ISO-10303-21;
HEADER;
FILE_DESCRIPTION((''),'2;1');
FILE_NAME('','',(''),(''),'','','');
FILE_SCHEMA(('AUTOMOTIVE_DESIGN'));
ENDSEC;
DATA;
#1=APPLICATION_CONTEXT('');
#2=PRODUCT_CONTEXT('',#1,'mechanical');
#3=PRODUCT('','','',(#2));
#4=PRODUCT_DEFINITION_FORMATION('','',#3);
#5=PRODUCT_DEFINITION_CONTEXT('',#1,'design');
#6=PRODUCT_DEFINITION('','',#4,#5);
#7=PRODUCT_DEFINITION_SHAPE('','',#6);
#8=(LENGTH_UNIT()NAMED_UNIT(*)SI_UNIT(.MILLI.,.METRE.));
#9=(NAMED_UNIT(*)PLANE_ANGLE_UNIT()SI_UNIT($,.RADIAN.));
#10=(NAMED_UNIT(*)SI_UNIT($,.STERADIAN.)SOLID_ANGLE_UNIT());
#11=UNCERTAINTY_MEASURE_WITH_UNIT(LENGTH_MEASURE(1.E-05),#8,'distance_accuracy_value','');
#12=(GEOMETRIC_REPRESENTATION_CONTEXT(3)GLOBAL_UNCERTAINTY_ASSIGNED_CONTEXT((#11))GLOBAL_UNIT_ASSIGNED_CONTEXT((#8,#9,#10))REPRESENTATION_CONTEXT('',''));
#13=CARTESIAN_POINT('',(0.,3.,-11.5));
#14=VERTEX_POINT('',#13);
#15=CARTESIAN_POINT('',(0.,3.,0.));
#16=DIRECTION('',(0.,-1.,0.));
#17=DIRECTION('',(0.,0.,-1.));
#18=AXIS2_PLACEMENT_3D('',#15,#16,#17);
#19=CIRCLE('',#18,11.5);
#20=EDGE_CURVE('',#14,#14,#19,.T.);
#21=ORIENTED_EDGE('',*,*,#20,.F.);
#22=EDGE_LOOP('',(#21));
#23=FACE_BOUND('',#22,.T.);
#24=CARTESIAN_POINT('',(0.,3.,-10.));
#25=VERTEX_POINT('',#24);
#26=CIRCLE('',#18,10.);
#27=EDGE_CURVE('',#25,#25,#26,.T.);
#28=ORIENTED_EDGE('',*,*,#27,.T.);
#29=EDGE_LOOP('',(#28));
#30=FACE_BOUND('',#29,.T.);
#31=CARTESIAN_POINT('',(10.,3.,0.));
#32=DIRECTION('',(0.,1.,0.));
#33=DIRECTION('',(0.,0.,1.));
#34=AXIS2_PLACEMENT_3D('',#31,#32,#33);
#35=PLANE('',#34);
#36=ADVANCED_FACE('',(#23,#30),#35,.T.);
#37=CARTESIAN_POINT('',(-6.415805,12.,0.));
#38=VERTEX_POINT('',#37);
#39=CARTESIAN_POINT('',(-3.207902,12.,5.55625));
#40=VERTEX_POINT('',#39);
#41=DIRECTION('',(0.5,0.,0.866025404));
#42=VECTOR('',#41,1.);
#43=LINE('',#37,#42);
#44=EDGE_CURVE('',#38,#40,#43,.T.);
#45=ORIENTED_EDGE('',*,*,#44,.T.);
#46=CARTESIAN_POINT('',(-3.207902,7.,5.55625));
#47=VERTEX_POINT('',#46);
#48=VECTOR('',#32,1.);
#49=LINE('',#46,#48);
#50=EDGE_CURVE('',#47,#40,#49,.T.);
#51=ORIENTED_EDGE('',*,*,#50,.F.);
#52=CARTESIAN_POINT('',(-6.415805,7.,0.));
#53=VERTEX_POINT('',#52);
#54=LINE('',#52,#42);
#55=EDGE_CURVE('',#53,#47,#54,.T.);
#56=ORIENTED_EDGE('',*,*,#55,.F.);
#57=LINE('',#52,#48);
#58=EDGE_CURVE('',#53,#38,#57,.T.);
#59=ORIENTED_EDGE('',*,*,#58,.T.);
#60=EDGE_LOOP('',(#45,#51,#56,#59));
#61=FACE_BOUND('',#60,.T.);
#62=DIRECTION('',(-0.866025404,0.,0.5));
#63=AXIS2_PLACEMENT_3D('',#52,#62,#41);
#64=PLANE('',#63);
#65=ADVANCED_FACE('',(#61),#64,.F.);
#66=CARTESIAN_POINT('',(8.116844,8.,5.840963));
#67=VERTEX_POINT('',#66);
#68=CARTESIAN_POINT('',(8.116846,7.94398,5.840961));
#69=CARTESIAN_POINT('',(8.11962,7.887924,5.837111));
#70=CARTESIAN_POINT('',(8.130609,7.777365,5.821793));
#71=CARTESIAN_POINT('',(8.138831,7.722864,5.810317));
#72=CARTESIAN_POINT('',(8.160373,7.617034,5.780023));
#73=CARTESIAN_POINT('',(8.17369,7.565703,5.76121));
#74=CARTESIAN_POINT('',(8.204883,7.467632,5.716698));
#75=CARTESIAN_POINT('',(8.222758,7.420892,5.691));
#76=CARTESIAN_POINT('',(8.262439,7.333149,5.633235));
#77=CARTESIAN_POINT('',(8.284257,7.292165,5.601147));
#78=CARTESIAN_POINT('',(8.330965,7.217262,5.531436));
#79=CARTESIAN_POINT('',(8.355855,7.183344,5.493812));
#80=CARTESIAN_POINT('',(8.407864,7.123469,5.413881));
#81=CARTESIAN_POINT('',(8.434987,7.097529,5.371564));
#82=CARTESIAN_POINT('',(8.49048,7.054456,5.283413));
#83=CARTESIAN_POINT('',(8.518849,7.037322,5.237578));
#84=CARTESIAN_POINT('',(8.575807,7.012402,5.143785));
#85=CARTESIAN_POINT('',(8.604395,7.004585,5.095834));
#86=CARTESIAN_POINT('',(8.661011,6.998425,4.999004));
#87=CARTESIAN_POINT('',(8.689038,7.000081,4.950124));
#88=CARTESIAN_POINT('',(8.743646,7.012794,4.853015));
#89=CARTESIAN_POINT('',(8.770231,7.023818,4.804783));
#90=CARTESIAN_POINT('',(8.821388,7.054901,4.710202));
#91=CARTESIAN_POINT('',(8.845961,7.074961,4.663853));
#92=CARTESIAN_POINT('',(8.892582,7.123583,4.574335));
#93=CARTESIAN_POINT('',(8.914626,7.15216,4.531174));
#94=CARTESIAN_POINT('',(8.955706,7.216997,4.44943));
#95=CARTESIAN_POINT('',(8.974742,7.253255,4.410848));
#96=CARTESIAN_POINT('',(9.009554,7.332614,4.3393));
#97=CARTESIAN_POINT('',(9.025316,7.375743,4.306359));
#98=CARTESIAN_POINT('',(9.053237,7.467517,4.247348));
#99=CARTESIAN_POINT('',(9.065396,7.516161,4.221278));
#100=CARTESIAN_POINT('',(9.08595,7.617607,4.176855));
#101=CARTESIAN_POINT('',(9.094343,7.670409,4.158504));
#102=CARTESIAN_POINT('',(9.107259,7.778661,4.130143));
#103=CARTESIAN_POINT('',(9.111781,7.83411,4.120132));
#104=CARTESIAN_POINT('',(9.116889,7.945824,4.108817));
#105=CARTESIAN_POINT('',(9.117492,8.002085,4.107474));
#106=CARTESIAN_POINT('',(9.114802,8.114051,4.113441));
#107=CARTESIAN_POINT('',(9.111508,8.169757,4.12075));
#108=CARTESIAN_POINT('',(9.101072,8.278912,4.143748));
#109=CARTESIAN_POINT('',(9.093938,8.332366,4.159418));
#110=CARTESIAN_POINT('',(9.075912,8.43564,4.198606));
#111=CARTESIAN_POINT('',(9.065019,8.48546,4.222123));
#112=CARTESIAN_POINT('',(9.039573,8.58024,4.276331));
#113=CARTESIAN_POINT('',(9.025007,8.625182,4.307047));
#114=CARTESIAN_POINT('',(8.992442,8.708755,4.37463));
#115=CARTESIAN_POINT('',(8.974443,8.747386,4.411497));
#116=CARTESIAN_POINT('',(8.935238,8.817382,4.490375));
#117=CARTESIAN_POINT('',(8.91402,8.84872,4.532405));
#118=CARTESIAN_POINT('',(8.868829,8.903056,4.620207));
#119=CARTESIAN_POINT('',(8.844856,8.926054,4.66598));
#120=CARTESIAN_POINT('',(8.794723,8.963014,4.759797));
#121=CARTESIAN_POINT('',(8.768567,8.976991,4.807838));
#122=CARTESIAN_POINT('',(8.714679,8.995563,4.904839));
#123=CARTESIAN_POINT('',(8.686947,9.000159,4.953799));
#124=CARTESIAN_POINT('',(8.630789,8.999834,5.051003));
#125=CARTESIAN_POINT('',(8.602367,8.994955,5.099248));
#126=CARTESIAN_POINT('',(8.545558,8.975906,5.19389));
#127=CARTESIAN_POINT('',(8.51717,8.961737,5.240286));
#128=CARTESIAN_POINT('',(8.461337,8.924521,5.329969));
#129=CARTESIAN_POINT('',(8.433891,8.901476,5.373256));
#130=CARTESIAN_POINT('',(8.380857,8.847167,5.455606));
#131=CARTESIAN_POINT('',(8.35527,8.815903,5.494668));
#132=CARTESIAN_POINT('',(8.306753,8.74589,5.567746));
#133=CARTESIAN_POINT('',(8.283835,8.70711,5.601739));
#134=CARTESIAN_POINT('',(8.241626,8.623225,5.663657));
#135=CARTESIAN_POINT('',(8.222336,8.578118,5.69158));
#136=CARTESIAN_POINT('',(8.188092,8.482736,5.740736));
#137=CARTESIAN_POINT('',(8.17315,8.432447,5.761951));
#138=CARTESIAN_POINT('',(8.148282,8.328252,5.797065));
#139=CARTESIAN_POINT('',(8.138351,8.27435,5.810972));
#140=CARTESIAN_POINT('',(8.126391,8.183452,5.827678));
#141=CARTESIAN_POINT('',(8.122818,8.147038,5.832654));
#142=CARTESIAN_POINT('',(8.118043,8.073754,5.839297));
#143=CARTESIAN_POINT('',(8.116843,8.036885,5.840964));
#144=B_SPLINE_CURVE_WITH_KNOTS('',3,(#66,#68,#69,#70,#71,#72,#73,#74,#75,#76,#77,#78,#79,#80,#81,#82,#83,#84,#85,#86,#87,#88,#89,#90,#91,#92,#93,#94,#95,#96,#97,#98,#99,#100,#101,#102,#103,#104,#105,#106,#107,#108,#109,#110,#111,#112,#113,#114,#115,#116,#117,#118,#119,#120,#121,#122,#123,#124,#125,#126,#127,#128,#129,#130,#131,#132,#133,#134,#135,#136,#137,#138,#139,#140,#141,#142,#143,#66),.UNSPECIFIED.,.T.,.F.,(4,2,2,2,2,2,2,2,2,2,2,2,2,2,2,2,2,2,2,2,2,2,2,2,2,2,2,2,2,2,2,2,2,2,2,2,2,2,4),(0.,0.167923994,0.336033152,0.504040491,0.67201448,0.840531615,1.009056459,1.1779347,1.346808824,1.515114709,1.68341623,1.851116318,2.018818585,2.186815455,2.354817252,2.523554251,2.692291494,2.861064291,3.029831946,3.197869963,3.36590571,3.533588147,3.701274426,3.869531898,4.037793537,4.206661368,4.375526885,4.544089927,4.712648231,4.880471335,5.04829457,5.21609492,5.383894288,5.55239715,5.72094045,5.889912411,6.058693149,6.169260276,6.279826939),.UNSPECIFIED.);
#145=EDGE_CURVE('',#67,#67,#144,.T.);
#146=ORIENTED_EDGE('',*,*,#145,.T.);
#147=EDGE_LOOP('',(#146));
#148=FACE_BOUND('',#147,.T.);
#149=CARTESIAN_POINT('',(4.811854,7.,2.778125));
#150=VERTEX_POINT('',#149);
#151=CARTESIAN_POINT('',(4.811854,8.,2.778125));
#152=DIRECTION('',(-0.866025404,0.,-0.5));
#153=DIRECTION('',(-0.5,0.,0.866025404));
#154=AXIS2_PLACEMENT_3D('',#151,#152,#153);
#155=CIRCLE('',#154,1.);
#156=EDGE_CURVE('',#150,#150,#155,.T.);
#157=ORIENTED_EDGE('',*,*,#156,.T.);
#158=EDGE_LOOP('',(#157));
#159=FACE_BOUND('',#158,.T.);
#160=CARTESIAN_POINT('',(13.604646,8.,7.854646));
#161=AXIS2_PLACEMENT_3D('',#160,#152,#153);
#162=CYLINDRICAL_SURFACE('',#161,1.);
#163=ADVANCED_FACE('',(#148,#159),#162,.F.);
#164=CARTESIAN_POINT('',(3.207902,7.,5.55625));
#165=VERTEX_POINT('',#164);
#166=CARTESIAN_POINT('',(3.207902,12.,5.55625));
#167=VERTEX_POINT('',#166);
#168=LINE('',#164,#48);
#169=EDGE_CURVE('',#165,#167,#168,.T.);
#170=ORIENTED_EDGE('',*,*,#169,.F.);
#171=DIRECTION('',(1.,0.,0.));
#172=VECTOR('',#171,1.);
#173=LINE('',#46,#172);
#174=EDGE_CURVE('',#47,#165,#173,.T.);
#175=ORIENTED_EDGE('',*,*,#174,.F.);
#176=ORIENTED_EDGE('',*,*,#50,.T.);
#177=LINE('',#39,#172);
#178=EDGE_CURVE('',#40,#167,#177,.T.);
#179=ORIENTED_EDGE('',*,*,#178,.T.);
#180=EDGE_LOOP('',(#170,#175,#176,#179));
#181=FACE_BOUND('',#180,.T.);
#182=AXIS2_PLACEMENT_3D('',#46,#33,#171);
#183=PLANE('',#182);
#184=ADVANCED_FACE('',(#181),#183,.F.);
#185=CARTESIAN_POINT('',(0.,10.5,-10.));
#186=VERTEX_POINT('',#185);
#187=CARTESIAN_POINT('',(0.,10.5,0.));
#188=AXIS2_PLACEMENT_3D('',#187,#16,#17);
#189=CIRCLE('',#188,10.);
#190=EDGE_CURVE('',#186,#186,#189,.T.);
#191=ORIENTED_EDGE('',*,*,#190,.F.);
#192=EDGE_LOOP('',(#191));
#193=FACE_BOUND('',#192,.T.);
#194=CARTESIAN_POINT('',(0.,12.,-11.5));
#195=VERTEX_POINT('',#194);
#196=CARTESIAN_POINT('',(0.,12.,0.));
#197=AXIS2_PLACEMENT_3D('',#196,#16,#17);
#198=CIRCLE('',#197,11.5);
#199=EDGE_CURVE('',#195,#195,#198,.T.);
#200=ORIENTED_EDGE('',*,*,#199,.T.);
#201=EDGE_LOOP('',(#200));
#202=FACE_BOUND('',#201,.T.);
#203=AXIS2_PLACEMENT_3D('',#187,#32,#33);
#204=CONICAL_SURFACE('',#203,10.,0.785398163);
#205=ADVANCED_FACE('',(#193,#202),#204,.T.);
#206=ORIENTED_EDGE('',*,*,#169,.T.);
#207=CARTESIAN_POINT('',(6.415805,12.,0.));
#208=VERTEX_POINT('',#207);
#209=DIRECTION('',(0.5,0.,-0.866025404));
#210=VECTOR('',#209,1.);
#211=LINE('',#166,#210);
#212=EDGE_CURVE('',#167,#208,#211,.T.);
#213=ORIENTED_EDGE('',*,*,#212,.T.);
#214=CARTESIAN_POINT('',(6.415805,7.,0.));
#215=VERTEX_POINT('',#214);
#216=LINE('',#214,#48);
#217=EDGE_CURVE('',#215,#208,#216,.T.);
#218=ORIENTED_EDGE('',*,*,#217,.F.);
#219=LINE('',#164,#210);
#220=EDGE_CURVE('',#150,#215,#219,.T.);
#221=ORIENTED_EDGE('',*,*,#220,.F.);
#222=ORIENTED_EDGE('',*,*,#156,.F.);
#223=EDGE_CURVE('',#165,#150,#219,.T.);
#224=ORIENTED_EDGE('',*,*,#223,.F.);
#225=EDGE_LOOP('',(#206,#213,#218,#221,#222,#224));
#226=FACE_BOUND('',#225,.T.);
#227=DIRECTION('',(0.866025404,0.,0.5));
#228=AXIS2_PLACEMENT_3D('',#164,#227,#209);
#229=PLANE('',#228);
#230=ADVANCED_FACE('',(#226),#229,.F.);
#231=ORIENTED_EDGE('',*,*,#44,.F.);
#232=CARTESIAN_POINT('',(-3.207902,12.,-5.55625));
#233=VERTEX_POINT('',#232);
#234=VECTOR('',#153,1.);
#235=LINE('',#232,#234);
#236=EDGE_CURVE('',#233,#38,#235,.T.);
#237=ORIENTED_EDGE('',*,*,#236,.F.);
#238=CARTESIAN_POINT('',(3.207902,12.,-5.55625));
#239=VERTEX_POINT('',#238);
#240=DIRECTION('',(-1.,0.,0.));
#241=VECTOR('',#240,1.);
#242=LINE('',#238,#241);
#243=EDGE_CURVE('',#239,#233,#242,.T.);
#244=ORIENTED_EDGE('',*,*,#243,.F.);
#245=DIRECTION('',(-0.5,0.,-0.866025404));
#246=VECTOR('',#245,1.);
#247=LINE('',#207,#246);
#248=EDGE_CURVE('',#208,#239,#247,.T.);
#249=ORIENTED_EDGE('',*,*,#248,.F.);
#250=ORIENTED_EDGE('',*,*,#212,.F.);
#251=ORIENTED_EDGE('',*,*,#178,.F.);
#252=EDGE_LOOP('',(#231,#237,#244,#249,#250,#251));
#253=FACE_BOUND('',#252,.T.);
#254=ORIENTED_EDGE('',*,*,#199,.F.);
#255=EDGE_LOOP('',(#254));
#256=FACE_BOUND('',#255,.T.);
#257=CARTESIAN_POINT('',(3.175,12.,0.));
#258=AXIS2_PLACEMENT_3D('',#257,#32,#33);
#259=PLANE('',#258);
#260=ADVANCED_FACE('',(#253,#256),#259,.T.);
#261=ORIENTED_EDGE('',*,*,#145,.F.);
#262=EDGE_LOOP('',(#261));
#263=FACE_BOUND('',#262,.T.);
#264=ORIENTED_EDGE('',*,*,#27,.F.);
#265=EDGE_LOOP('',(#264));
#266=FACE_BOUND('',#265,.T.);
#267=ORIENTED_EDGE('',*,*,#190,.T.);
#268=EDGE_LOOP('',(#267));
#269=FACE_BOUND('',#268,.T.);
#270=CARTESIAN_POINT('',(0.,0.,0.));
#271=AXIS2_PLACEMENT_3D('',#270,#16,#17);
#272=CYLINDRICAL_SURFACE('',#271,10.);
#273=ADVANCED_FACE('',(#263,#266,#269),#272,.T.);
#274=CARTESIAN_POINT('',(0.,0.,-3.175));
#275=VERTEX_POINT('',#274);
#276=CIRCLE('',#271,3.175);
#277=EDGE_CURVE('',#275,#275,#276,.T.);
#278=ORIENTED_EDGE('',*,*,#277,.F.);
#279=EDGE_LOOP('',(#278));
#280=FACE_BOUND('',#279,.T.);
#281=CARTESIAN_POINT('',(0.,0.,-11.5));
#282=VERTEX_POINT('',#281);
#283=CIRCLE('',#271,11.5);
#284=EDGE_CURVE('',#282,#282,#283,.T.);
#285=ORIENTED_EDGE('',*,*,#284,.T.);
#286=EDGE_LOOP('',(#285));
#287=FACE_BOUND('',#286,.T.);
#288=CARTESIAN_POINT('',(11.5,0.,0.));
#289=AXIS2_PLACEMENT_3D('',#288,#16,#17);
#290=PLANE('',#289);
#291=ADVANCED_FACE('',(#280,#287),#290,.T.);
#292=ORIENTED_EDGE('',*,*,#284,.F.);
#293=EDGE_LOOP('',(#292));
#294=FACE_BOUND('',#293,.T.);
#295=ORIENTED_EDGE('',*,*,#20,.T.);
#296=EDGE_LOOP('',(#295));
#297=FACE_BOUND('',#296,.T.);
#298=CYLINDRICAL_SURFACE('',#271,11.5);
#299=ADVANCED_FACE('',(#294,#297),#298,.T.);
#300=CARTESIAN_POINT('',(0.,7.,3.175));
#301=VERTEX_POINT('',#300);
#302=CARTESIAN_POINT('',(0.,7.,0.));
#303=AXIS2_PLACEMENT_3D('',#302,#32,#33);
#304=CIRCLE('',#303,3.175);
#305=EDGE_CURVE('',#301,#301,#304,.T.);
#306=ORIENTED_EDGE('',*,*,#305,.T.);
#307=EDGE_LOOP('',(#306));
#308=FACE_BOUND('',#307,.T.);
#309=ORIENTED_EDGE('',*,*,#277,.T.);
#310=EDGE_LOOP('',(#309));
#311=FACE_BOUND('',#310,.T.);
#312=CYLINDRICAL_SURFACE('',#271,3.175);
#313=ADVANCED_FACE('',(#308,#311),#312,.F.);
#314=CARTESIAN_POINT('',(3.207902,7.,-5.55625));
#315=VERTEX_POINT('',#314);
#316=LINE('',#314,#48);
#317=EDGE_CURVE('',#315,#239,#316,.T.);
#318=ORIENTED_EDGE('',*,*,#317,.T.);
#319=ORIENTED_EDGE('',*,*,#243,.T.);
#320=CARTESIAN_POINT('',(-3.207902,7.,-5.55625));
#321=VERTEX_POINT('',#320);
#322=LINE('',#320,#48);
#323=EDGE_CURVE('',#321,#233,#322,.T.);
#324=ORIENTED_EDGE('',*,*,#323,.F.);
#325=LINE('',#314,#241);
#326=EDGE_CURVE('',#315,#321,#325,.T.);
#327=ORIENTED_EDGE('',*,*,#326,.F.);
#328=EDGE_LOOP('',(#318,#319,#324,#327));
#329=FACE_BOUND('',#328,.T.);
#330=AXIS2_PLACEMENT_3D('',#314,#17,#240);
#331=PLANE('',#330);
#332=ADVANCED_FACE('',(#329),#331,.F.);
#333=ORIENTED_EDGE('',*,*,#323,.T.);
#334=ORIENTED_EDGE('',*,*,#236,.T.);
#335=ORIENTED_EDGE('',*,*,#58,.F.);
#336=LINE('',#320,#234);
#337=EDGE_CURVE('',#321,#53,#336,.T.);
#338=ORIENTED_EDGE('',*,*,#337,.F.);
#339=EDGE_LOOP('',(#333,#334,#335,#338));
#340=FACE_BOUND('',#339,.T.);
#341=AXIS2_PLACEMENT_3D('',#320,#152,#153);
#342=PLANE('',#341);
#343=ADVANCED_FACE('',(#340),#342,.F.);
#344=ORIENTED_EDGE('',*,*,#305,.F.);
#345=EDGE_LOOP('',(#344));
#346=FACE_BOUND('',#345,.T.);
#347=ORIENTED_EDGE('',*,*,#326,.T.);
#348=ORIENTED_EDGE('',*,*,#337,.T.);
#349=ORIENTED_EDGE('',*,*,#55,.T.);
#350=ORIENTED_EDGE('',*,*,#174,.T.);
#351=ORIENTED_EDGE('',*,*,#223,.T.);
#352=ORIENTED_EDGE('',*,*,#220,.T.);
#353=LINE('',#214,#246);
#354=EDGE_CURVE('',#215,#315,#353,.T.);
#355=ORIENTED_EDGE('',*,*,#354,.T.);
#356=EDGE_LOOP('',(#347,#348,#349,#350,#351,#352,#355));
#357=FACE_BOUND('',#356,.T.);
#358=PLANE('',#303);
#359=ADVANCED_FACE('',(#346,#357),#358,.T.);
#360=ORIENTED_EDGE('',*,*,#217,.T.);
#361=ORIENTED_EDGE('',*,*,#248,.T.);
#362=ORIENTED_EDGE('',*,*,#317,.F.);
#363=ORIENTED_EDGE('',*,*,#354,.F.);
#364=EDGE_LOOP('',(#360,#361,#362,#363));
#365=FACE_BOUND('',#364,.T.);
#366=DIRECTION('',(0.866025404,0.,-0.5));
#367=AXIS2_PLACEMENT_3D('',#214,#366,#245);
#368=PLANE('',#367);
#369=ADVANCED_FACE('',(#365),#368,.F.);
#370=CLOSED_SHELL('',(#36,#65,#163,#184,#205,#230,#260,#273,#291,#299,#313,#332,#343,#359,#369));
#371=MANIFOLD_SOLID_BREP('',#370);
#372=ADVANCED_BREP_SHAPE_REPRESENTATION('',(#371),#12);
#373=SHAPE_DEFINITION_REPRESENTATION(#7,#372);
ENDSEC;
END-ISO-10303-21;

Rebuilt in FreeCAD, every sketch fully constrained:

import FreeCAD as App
import Part
import Sketcher

V = App.Vector
Q = App.Units.Quantity

doc = App.newDocument("Part")
params = doc.addObject("Spreadsheet::Sheet", "Params")
for row, (alias, value) in enumerate([
    ("sketch1_height", "12 mm"),
    ("sketch1_height2", "3 mm"),
    ("sketch1_width", "1.5 mm"),
    ("revolution_angle", "360 deg"),
    ("pocket1_length", "5 mm"),
    ("sketch3_diameter", "2 mm"),
], start=1):
    params.set(f"A{row}", alias)
    params.set(f"B{row}", "=" + value)
    params.setAlias(f"B{row}", alias)

body = doc.addObject("PartDesign::Body", "Body")

# Sketch on XY plane
sketch1 = doc.addObject("Sketcher::SketchObject", "Sketch")
body.addObject(sketch1)
sketch1.AttachmentSupport = (doc.XY_Plane, [""])
sketch1.MapMode = "FlatFace"
sketch1.addGeometry([
    Part.LineSegment(V(3.175, 12, 0), V(3.175, 0, 0)),  # 0
    Part.LineSegment(V(3.175, 0, 0), V(11.5, 0, 0)),  # 1
    Part.LineSegment(V(11.5, 0, 0), V(11.5, 3, 0)),  # 2
    Part.LineSegment(V(11.5, 3, 0), V(10, 3, 0)),  # 3
    Part.LineSegment(V(10, 3, 0), V(10, 10.5, 0)),  # 4
    Part.LineSegment(V(10, 10.5, 0), V(11.5, 12, 0)),  # 5
    Part.LineSegment(V(11.5, 12, 0), V(3.175, 12, 0)),  # 6
], False)
sketch1.addConstraint([
    Sketcher.Constraint("Coincident", 0, 2, 1, 1),
    Sketcher.Constraint("Coincident", 1, 2, 2, 1),
    Sketcher.Constraint("Coincident", 2, 2, 3, 1),
    Sketcher.Constraint("Coincident", 3, 2, 4, 1),
    Sketcher.Constraint("Coincident", 4, 2, 5, 1),
    Sketcher.Constraint("Coincident", 5, 2, 6, 1),
    Sketcher.Constraint("Coincident", 6, 2, 0, 1),
    Sketcher.Constraint("Vertical", 0),
    Sketcher.Constraint("Horizontal", 1),
    Sketcher.Constraint("Vertical", 2),
    Sketcher.Constraint("Horizontal", 3),
    Sketcher.Constraint("Vertical", 4),
    Sketcher.Constraint("Horizontal", 6),
    Sketcher.Constraint("PointOnObject", 0, 2, -1),
    Sketcher.Constraint("Vertical", 2, 2, 5, 2),
    Sketcher.Constraint("DistanceY", 0, 2, 0, 1, 12.0),
    Sketcher.Constraint("DistanceY", 2, 1, 2, 2, 3.0),
    Sketcher.Constraint("Angle", 5, Q("45 deg")),
    Sketcher.Constraint("DistanceX", 3, 2, 3, 1, 1.5),
    Sketcher.Constraint("DistanceX", -1, 1, 3, 2, 10.0),
    Sketcher.Constraint("DistanceX", 1, 1, 1, 2, 8.325),
])
sketch1.setExpression("Constraints[15]", "Params.sketch1_height")
sketch1.setExpression("Constraints[16]", "Params.sketch1_height2")
sketch1.setExpression("Constraints[18]", "Params.sketch1_width")
revolution = doc.addObject("PartDesign::Revolution", "Revolution")
body.addObject(revolution)
revolution.Profile = sketch1
revolution.ReferenceAxis = (sketch1, ["V_Axis"])
revolution.setExpression("Angle", "Params.revolution_angle")

# Sketch on XZ plane
sketch2 = doc.addObject("Sketcher::SketchObject", "Sketch001")
body.addObject(sketch2)
sketch2.AttachmentSupport = (doc.XZ_Plane, [""])
sketch2.MapMode = "FlatFace"
sketch2.AttachmentOffset = App.Placement(V(0, 0, -12), App.Rotation())
sketch2.addGeometry([
    Part.LineSegment(V(3.207902, -5.55625, 0), V(-3.207902, -5.55625, 0)),  # 0
    Part.LineSegment(V(-3.207902, -5.55625, 0), V(-6.415805, 0, 0)),  # 1
    Part.LineSegment(V(-6.415805, 0, 0), V(-3.207902, 5.55625, 0)),  # 2
    Part.LineSegment(V(-3.207902, 5.55625, 0), V(3.207902, 5.55625, 0)),  # 3
    Part.LineSegment(V(3.207902, 5.55625, 0), V(6.415805, 0, 0)),  # 4
    Part.LineSegment(V(6.415805, 0, 0), V(3.207902, -5.55625, 0)),  # 5
], False)
sketch2.addConstraint([
    Sketcher.Constraint("Coincident", 0, 2, 1, 1),
    Sketcher.Constraint("Coincident", 1, 2, 2, 1),
    Sketcher.Constraint("Coincident", 2, 2, 3, 1),
    Sketcher.Constraint("Coincident", 3, 2, 4, 1),
    Sketcher.Constraint("Coincident", 4, 2, 5, 1),
    Sketcher.Constraint("Coincident", 5, 2, 0, 1),
    Sketcher.Constraint("Horizontal", 0),
    Sketcher.Constraint("Horizontal", 3),
    Sketcher.Constraint("Symmetric", 0, 2, 3, 2, -1, 1),
    Sketcher.Constraint("Symmetric", 1, 2, 4, 2, -1, 1),
    Sketcher.Constraint("PointOnObject", 1, 2, -1),
    Sketcher.Constraint("Parallel", 2, 5),
    Sketcher.Constraint("Vertical", 0, 2, 2, 2),
    Sketcher.Constraint("Angle", 1, Q("120 deg")),
    Sketcher.Constraint("DistanceY", 0, 2, 2, 2, 11.1125),
    Sketcher.Constraint("DistanceX", 0, 2, 0, 1, 6.415805),
])
pocket1 = doc.addObject("PartDesign::Pocket", "Pocket")
body.addObject(pocket1)
pocket1.Profile = sketch2
pocket1.setExpression("Length", "Params.pocket1_length")
pocket1.Reversed = True

# Sketch on an angled plane
sketch3 = doc.addObject("Sketcher::SketchObject", "Sketch002")
body.addObject(sketch3)
sketch3.Placement = App.Placement(V(4.811854, 0, 2.778125), App.Rotation(V(-0.5, 0, 0.866025404), V(0, 1, 0), V(-0.866025404, 0, -0.5), "ZXY"))
sketch3.addGeometry(Part.Circle(V(0, 8, 0), V(0, 0, 1), 1), False)
sketch3.addConstraint([
    Sketcher.Constraint("PointOnObject", 0, 3, -2),
    Sketcher.Constraint("Diameter", 0, 2.0),
    Sketcher.Constraint("DistanceY", -1, 1, 0, 3, 8.0),
])
sketch3.setExpression("Constraints[1]", "Params.sketch3_diameter")
pocket2 = doc.addObject("PartDesign::Pocket", "Pocket001")
body.addObject(pocket2)
pocket2.Profile = sketch3
pocket2.Type = "ThroughAll"

doc.recompute()
